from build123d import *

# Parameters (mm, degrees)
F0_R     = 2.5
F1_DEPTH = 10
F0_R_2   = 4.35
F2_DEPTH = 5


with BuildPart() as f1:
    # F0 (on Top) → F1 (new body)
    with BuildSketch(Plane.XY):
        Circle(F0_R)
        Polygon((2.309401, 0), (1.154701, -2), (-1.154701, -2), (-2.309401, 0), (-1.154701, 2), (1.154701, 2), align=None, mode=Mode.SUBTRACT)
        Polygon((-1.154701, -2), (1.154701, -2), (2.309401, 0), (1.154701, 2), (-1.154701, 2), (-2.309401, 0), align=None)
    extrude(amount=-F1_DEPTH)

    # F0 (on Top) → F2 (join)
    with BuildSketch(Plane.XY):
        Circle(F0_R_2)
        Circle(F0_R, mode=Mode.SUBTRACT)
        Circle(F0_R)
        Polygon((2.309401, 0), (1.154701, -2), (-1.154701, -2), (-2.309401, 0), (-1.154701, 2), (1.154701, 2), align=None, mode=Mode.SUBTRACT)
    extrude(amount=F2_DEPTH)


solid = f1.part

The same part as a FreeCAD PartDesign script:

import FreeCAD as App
import Part
import Sketcher
Q = App.Units.Quantity


def add_polygon(sketch, points):
    """Adds a closed chain of lines whose ends are joined by coincident constraints."""
    first, n = sketch.GeometryCount, len(points)
    for a, b in zip(points, points[1:] + points[:1]):
        sketch.addGeometry(Part.LineSegment(App.Vector(*a, 0), App.Vector(*b, 0)), False)
    for i in range(n):
        sketch.addConstraint(Sketcher.Constraint("Coincident", first + i, 2, first + (i + 1) % n, 1))

doc = App.newDocument("Part")
body = doc.addObject("PartDesign::Body", "Body")

sketch1 = body.newObject("Sketcher::SketchObject", "Sketch")
sketch1.AttachmentSupport = (doc.getObject("XY_Plane"), [""])
sketch1.MapMode = "FlatFace"
sketch1.addGeometry(Part.Circle(App.Vector(0, 0, 0), App.Vector(0, 0, 1), 2.5), False)
sketch1.addConstraint(Sketcher.Constraint("Coincident", 0, 3, -1, 1))
sketch1.addConstraint(Sketcher.Constraint("Diameter", 0, Q("5 mm")))
pad1 = body.newObject("PartDesign::Pad", "Pad")
pad1.Profile = sketch1
pad1.Length = 10
pad1.Reversed = True

sketch2 = body.newObject("Sketcher::SketchObject", "Sketch001")
sketch2.AttachmentSupport = (doc.getObject("XY_Plane"), [""])
sketch2.MapMode = "FlatFace"
sketch2.addGeometry(Part.Circle(App.Vector(0, 0, 0), App.Vector(0, 0, 1), 4.35), False)
add_polygon(sketch2, [(1.154701, 2), (2.309401, 0), (1.154701, -2), (-1.154701, -2), (-2.309401, 0), (-1.154701, 2)])
sketch2.addConstraint(Sketcher.Constraint("Horizontal", 3))
sketch2.addConstraint(Sketcher.Constraint("Horizontal", 6))
sketch2.addConstraint(Sketcher.Constraint("Coincident", 0, 3, -1, 1))
sketch2.addConstraint(Sketcher.Constraint("Symmetric", 1, 2, 4, 2, -1, 1))
sketch2.addConstraint(Sketcher.Constraint("Symmetric", 2, 2, 5, 2, -1, 1))
sketch2.addConstraint(Sketcher.Constraint("PointOnObject", 1, 2, -1))
sketch2.addConstraint(Sketcher.Constraint("Parallel", 1, 4))
sketch2.addConstraint(Sketcher.Constraint("Vertical", 3, 2, 5, 2))
sketch2.addConstraint(Sketcher.Constraint("Diameter", 0, Q("8.7 mm")))
sketch2.addConstraint(Sketcher.Constraint("Angle", 1, Q("-60.000012 deg")))
sketch2.addConstraint(Sketcher.Constraint("DistanceY", 2, 2, -1, 1, Q("2 mm")))
sketch2.addConstraint(Sketcher.Constraint("DistanceX", 3, 2, 3, 1, Q("2.309402 mm")))
pad2 = body.newObject("PartDesign::Pad", "Pad001")
pad2.Profile = sketch2
pad2.Length = 5

doc.recompute()
